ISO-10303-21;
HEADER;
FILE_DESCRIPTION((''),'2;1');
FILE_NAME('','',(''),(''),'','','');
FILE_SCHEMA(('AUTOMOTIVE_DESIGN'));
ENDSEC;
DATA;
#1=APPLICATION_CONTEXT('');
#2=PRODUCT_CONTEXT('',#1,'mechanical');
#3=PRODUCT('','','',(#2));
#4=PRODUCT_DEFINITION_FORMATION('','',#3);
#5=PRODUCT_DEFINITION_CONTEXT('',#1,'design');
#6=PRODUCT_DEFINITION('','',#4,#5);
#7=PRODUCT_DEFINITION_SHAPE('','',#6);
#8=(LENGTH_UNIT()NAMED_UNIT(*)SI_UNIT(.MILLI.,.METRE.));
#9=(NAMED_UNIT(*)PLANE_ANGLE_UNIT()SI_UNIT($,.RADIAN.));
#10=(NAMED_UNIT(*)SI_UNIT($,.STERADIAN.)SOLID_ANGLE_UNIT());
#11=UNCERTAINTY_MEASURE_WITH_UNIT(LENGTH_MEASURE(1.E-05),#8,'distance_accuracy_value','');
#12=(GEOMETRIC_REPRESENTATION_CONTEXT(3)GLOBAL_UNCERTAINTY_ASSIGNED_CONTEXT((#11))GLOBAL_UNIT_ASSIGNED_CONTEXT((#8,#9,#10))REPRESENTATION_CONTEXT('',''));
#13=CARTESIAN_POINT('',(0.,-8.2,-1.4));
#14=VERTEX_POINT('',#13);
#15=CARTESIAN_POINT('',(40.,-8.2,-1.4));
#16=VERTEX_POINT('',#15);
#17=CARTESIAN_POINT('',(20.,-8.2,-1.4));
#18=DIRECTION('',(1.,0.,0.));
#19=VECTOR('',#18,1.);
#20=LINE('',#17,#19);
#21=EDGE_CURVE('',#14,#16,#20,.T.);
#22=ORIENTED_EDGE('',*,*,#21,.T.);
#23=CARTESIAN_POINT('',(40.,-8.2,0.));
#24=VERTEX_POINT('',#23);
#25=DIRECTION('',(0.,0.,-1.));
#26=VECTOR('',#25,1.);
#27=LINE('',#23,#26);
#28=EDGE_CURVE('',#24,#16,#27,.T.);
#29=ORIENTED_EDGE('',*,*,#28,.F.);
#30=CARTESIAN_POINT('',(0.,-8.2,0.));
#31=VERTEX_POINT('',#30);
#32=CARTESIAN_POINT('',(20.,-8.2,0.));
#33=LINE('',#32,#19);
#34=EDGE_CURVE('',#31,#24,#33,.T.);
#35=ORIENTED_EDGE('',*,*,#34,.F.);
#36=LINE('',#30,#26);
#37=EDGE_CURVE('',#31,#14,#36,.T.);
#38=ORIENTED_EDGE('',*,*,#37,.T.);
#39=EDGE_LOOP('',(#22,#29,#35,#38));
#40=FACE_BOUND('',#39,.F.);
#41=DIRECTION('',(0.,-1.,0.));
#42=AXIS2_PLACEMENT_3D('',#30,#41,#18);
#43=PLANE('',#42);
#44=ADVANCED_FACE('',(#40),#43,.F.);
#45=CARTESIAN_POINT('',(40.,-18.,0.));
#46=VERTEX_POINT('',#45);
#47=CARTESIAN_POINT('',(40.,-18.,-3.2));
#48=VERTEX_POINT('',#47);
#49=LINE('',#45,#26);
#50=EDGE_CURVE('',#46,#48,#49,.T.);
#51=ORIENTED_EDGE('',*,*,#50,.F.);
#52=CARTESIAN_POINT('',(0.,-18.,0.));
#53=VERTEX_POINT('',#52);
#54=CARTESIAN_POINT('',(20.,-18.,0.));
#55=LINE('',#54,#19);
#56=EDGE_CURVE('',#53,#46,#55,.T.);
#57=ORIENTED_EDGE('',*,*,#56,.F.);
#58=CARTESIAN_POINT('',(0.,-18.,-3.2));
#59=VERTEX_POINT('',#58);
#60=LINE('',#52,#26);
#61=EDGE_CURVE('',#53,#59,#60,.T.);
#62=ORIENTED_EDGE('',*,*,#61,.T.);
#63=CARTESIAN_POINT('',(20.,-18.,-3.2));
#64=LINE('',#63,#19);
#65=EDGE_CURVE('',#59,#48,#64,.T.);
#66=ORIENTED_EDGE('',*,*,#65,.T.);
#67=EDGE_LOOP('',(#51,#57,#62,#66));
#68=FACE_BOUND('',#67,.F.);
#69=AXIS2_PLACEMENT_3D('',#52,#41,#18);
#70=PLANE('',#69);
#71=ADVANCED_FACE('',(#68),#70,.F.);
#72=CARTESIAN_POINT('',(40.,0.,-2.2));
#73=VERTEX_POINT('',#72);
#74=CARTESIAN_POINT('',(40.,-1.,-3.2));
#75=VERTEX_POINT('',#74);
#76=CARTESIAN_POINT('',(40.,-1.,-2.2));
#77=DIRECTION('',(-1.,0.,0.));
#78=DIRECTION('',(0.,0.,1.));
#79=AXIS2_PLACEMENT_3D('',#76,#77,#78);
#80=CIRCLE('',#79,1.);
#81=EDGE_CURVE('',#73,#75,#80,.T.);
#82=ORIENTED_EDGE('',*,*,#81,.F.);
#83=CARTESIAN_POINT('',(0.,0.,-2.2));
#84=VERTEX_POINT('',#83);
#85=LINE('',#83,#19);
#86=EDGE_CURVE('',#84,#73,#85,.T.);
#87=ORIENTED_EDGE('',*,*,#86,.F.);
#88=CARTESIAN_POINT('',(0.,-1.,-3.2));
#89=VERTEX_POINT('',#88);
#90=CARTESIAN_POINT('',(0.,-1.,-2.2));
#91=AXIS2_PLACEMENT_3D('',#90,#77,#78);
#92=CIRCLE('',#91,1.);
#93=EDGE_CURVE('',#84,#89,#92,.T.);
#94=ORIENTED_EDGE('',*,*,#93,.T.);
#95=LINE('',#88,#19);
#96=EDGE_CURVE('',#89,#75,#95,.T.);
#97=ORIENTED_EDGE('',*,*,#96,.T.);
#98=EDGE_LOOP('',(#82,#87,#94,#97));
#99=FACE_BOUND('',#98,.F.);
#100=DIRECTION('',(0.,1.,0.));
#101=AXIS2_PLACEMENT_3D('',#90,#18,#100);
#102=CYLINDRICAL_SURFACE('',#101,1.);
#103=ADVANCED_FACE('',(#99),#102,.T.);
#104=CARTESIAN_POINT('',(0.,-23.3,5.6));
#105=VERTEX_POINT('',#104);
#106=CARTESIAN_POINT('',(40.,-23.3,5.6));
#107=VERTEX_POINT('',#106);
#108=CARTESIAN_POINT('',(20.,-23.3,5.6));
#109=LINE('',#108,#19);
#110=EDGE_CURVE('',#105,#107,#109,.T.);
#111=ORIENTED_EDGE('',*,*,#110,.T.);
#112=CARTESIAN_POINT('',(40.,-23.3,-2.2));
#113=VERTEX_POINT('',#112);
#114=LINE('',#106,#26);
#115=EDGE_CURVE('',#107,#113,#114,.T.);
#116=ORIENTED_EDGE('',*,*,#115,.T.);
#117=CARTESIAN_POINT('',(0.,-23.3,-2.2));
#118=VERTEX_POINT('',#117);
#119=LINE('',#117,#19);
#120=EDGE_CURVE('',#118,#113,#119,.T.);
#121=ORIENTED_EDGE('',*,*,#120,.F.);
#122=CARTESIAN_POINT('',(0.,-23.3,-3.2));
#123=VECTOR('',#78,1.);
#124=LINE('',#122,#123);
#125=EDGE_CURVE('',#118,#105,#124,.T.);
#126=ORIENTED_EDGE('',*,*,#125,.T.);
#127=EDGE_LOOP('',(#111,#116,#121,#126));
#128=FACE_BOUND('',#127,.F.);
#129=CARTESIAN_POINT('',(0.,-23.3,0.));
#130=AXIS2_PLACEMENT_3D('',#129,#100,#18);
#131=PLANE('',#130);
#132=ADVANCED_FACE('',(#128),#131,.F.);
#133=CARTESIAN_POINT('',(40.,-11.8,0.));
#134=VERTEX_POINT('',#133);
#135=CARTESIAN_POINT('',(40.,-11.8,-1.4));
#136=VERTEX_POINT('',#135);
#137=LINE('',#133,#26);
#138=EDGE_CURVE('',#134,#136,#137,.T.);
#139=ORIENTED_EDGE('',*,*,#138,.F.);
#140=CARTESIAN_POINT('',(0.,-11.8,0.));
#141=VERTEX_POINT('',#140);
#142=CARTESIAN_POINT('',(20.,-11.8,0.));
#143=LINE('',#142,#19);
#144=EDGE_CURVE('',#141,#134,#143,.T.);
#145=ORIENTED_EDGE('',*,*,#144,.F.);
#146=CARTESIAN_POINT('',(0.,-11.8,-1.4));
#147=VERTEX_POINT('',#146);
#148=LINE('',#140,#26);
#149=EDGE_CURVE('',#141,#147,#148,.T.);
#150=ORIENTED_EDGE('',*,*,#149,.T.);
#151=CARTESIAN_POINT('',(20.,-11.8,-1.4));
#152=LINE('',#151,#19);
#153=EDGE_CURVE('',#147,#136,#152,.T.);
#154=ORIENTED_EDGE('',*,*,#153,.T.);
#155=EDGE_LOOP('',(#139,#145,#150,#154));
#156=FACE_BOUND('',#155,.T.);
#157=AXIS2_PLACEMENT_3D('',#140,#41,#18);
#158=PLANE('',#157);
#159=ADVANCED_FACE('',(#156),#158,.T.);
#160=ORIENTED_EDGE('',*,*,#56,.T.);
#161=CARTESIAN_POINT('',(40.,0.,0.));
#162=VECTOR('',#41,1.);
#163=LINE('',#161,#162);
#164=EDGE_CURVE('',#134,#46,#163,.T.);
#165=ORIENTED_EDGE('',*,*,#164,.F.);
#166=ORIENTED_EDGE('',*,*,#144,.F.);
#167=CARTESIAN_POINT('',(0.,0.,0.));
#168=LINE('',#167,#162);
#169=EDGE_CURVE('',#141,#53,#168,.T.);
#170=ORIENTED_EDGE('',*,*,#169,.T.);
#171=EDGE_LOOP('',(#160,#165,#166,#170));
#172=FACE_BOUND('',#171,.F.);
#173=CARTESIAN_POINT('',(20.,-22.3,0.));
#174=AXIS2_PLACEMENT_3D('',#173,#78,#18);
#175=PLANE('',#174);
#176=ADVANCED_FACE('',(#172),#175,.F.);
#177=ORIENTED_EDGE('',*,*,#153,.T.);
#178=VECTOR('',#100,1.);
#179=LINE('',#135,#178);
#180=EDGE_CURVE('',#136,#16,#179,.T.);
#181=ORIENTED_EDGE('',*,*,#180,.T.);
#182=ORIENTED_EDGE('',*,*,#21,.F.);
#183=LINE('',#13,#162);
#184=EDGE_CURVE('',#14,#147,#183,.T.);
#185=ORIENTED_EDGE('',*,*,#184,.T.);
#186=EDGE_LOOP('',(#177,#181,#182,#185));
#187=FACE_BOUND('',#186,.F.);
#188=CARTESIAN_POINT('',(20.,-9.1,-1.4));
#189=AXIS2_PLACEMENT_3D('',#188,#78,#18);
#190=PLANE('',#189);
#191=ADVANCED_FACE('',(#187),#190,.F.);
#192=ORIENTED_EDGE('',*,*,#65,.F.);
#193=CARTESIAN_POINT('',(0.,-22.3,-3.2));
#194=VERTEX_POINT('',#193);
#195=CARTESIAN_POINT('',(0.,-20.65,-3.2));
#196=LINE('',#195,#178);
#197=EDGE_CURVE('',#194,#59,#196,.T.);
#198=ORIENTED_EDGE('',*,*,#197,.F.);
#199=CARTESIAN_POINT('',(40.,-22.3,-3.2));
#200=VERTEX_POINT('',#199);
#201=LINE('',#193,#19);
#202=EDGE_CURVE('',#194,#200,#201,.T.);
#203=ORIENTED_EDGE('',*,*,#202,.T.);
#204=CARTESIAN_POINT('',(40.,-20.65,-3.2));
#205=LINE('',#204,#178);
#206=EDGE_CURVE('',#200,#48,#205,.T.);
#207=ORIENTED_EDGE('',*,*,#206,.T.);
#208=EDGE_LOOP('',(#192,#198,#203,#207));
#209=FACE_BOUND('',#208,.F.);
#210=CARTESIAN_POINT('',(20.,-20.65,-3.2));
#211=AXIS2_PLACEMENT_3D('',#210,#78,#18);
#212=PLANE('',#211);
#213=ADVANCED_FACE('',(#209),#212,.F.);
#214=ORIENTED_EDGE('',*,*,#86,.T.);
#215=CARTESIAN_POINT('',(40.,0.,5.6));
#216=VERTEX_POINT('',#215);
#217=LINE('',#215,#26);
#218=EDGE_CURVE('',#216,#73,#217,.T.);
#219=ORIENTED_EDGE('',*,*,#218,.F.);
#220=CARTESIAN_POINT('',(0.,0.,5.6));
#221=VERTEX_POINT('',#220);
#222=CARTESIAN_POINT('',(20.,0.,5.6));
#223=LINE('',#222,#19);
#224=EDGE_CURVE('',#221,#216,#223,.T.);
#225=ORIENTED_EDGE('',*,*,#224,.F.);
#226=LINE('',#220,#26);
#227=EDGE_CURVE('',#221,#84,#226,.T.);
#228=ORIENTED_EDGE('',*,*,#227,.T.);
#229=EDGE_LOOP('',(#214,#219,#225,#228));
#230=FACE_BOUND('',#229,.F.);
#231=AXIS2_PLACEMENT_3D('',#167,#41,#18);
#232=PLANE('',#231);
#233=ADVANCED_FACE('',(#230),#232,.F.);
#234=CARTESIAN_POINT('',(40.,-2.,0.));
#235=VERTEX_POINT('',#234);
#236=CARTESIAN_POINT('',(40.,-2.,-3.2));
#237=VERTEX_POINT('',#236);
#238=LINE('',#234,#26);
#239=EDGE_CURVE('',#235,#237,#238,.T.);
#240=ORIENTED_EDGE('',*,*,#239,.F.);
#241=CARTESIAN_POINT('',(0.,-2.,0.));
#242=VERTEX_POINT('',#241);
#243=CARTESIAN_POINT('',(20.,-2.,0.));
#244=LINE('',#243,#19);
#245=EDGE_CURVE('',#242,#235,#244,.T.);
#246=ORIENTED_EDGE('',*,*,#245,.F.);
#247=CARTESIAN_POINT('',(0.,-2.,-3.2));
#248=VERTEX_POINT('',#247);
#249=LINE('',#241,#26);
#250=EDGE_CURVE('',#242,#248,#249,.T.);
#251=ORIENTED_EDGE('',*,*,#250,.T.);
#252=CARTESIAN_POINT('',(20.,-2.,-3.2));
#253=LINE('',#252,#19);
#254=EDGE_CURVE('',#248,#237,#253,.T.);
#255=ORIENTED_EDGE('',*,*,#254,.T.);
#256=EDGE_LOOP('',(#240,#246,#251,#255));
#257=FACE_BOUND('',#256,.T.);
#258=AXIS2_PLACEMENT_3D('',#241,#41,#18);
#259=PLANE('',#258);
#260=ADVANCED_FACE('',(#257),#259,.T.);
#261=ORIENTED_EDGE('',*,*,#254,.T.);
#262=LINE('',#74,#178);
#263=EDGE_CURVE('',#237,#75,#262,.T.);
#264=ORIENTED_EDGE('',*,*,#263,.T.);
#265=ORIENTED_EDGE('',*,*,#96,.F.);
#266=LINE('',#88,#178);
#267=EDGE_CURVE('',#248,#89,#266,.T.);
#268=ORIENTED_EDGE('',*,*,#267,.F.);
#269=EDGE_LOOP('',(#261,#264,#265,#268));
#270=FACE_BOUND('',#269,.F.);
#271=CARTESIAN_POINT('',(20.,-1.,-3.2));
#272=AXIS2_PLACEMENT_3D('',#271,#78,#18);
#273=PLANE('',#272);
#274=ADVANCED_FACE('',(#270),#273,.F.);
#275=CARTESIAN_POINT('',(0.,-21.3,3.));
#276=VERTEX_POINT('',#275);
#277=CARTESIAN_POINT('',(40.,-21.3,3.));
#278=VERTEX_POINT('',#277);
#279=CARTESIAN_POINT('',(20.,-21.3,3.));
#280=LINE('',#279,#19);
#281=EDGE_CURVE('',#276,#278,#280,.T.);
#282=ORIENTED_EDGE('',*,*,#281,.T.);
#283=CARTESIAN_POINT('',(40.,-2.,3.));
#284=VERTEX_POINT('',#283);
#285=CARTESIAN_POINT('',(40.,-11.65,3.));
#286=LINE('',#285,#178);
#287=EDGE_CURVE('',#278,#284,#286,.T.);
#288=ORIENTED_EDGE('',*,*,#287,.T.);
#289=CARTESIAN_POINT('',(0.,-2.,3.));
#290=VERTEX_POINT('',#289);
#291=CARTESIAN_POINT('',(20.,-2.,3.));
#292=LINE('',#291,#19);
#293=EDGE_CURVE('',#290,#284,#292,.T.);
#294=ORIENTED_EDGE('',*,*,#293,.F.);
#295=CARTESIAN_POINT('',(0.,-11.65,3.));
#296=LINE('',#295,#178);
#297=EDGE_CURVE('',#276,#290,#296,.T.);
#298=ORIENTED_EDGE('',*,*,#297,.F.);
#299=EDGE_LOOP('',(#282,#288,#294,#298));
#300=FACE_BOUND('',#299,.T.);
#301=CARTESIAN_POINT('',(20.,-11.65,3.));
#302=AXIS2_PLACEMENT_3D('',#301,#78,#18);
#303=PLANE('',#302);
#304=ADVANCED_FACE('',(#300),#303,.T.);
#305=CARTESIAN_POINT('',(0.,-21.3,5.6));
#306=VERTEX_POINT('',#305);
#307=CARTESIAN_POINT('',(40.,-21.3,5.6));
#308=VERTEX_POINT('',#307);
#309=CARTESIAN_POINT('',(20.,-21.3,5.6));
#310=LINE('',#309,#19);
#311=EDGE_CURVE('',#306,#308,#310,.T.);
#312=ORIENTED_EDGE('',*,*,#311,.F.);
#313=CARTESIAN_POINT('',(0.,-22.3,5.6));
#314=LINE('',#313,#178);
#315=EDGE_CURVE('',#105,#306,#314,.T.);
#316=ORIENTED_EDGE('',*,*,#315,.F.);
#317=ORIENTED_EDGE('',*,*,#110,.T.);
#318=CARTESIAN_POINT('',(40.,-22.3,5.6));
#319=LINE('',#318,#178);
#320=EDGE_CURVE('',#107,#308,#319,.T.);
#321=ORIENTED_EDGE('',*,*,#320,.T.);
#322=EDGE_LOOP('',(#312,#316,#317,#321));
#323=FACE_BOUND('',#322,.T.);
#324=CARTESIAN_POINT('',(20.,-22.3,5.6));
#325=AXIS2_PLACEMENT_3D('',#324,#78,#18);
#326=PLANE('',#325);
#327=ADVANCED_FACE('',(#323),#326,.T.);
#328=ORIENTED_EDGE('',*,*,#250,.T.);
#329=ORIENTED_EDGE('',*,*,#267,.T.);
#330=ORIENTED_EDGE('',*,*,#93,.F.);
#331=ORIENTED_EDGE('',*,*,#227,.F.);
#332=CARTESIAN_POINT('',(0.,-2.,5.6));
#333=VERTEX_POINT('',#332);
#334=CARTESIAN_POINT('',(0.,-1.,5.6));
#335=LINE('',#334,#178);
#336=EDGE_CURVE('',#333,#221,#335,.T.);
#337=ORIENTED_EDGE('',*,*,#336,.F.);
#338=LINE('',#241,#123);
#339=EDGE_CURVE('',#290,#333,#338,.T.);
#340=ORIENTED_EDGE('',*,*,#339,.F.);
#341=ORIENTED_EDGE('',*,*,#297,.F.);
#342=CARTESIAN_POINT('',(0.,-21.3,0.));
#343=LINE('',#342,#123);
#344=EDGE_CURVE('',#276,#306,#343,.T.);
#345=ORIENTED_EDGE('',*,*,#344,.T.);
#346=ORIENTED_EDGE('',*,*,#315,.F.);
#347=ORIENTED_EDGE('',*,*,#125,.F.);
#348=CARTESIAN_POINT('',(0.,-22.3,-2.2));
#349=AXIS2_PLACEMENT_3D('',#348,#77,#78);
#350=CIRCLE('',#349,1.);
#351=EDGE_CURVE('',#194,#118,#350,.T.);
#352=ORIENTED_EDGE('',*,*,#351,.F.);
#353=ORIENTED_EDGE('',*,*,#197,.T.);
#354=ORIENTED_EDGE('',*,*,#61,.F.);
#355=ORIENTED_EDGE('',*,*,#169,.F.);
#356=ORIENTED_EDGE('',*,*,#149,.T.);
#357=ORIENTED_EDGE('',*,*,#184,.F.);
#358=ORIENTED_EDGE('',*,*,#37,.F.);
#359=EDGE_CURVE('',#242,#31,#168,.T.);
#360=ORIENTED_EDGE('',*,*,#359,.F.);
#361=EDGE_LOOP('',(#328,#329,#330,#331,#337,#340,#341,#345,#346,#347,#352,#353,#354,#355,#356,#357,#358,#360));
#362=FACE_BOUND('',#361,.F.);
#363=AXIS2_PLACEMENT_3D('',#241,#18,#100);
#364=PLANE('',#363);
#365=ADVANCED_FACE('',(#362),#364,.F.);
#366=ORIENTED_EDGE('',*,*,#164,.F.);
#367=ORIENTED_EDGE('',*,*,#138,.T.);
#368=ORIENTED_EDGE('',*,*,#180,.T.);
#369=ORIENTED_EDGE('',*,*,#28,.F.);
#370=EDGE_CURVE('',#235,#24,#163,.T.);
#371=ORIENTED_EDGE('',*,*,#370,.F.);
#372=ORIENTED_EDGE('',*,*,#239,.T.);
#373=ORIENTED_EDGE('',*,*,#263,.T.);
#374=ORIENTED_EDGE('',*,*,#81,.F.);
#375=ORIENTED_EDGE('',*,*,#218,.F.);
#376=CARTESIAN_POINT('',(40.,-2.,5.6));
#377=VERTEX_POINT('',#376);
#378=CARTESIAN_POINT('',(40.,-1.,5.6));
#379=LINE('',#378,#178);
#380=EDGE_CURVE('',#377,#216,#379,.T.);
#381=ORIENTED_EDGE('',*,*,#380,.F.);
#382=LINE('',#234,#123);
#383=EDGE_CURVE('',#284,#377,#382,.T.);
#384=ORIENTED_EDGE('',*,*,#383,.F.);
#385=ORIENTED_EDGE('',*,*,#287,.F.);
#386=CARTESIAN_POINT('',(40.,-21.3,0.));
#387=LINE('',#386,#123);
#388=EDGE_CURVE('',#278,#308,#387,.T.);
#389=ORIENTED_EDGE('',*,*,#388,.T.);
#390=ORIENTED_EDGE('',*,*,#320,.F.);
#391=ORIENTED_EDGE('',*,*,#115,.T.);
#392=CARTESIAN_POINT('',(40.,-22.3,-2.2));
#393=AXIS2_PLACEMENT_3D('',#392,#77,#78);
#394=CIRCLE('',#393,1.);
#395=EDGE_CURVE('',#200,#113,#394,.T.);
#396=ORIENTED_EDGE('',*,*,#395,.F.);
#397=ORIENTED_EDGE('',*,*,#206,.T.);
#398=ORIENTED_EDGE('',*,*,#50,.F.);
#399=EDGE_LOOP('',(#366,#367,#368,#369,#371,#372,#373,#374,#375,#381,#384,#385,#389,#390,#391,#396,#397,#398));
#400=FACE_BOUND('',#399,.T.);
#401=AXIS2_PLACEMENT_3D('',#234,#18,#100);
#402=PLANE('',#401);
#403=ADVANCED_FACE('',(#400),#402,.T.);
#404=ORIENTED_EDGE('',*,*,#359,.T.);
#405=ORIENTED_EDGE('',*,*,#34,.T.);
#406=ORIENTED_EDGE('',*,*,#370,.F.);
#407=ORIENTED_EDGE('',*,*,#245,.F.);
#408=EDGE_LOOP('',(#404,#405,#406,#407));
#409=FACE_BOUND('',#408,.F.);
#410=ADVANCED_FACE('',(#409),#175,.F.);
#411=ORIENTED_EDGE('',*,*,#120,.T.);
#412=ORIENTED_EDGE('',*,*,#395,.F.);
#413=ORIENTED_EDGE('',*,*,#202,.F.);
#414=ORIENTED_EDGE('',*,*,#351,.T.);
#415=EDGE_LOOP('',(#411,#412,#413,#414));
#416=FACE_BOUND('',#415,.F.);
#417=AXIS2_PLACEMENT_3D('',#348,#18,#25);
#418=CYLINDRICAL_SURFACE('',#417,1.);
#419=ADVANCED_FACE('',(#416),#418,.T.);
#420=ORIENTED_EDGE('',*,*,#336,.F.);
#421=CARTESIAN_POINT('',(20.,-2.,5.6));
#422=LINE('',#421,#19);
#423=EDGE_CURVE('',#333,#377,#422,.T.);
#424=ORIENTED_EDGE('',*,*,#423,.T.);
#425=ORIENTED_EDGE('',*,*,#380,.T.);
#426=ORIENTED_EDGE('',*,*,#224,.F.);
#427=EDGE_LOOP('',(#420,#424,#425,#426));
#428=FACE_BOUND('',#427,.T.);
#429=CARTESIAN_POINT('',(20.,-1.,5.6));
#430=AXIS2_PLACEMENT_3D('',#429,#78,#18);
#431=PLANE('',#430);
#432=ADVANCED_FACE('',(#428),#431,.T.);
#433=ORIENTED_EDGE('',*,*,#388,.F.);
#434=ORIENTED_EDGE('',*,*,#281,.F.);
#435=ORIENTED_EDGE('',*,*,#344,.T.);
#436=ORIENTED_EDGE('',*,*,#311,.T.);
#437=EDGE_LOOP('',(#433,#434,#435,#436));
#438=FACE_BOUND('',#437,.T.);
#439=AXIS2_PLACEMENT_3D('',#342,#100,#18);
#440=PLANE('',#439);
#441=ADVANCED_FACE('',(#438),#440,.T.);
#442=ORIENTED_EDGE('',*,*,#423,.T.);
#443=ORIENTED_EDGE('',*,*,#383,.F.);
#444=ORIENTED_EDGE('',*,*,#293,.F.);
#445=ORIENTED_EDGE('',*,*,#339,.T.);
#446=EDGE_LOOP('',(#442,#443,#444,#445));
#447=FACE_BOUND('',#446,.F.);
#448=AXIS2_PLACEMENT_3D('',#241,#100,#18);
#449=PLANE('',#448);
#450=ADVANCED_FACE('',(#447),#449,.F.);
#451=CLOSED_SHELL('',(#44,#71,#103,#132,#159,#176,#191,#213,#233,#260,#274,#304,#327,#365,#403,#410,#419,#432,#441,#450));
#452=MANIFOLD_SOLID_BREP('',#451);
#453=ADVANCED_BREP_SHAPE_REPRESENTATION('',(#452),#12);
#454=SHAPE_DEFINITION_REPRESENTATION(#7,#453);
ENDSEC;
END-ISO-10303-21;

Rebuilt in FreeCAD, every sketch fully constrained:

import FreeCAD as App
import Part
import Sketcher


def edges_at(feature, points):
    """Names of the edges that pass closest to the given points."""
    edges = feature.Shape.Edges
    near = lambda p: min(range(len(edges)), key=lambda i: edges[i].distToShape(Part.Vertex(*p))[0])
    return sorted({f"Edge{near(p) + 1}" for p in points})


def add_polygon(sketch, points):
    """Adds a closed chain of lines whose ends are joined by coincident constraints."""
    first, n = sketch.GeometryCount, len(points)
    for a, b in zip(points, points[1:] + points[:1]):
        sketch.addGeometry(Part.LineSegment(App.Vector(*a, 0), App.Vector(*b, 0)), False)
    for i in range(n):
        sketch.addConstraint(Sketcher.Constraint("Coincident", first + i, 2, first + (i + 1) % n, 1))

doc = App.newDocument("Part")
params = doc.addObject("Spreadsheet::Sheet", "Params")
for row, (alias, value) in enumerate([
    ("sketch1_width", "40 mm"),
    ("sketch1_height", "19.3 mm"),
    ("pad1_length", "3 mm"),
    ("sketch2_width", "40 mm"),
    ("sketch2_height", "2 mm"),
    ("pad2_length", "5.6 mm"),
    ("sketch3_width", "40 mm"),
    ("sketch3_height", "2 mm"),
    ("sketch3_height2", "5.3 mm"),
    ("pad3_length", "3.2 mm"),
    ("fillet_radius", "1 mm"),
    ("sketch4_width", "40 mm"),
    ("sketch4_height", "3.6 mm"),
    ("pad4_length", "1.4 mm"),
], start=1):
    params.set(f"A{row}", alias)
    params.set(f"B{row}", "=" + value)
    params.setAlias(f"B{row}", alias)

body = doc.addObject("PartDesign::Body", "Body")

sketch1 = body.newObject("Sketcher::SketchObject", "Sketch")
sketch1.AttachmentSupport = (doc.getObject("XY_Plane"), [""])
sketch1.MapMode = "FlatFace"
add_polygon(sketch1, [(0, -2), (0, -21), (40, -21), (40, -2)])
sketch1.addConstraint([
    Sketcher.Constraint("Vertical", 0),
    Sketcher.Constraint("Horizontal", 1),
    Sketcher.Constraint("Vertical", 2),
    Sketcher.Constraint("Horizontal", 3),
    Sketcher.Constraint("PointOnObject", 0, 2, -2),
    Sketcher.Constraint("DistanceX", 1, 1, 1, 2, 40.0),
    Sketcher.Constraint("DistanceY", 0, 2, 0, 1, 19.3),
    Sketcher.Constraint("DistanceY", 2, 2, -1, 1, 2.0),
])
sketch1.setExpression("Constraints[9]", "Params.sketch1_width")
sketch1.setExpression("Constraints[10]", "Params.sketch1_height")
pad1 = body.newObject("PartDesign::Pad", "Pad")
pad1.Profile = sketch1
pad1.setExpression("Length", "Params.pad1_length")

sketch2 = body.newObject("Sketcher::SketchObject", "Sketch001")
sketch2.AttachmentSupport = (doc.getObject("XY_Plane"), [""])
sketch2.MapMode = "FlatFace"
add_polygon(sketch2, [(0, -21.3), (0, -23.3), (40, -23.3), (40, -21.3)])
add_polygon(sketch2, [(0, 0), (0, -2), (40, -2), (40, 0)])
sketch2.addConstraint([
    Sketcher.Constraint("Vertical", 0),
    Sketcher.Constraint("Horizontal", 1),
    Sketcher.Constraint("Vertical", 2),
    Sketcher.Constraint("Horizontal", 3),
    Sketcher.Constraint("Vertical", 4),
    Sketcher.Constraint("Horizontal", 5),
    Sketcher.Constraint("Vertical", 6),
    Sketcher.Constraint("Horizontal", 7),
    Sketcher.Constraint("Coincident", 7, 2, -1, 1),
    Sketcher.Constraint("PointOnObject", 0, 2, -2),
    Sketcher.Constraint("Vertical", 2, 2, 5, 2),
    Sketcher.Constraint("Equal", 2, 4),
    Sketcher.Constraint("DistanceX", 1, 1, 1, 2, 40.0),
    Sketcher.Constraint("DistanceY", 0, 2, 0, 1, 2.0),
    Sketcher.Constraint("DistanceY", 0, 2, -1, 1, 23.3),
])
sketch2.setExpression("Constraints[20]", "Params.sketch2_width")
sketch2.setExpression("Constraints[21]", "Params.sketch2_height")
pad2 = body.newObject("PartDesign::Pad", "Pad001")
pad2.Profile = sketch2
pad2.setExpression("Length", "Params.pad2_length")

sketch3 = body.newObject("Sketcher::SketchObject", "Sketch002")
sketch3.AttachmentSupport = (doc.getObject("XY_Plane"), [""])
sketch3.MapMode = "FlatFace"
add_polygon(sketch3, [(0, 0), (0, -2), (40, -2), (40, 0)])
add_polygon(sketch3, [(0, -18), (0, -23.3), (40, -23.3), (40, -18)])
sketch3.addConstraint([
    Sketcher.Constraint("Vertical", 0),
    Sketcher.Constraint("Horizontal", 1),
    Sketcher.Constraint("Vertical", 2),
    Sketcher.Constraint("Horizontal", 3),
    Sketcher.Constraint("Vertical", 4),
    Sketcher.Constraint("Horizontal", 5),
    Sketcher.Constraint("Vertical", 6),
    Sketcher.Constraint("Horizontal", 7),
    Sketcher.Constraint("Coincident", 3, 2, -1, 1),
    Sketcher.Constraint("PointOnObject", 4, 2, -2),
    Sketcher.Constraint("Vertical", 2, 2, 5, 2),
    Sketcher.Constraint("DistanceX", 1, 1, 1, 2, 40.0),
    Sketcher.Constraint("DistanceY", 0, 2, 0, 1, 2.0),
    Sketcher.Constraint("DistanceY", 4, 2, 4, 1, 5.3),
    Sketcher.Constraint("DistanceY", 6, 2, -1, 1, 18.0),
])
sketch3.setExpression("Constraints[19]", "Params.sketch3_width")
sketch3.setExpression("Constraints[20]", "Params.sketch3_height")
sketch3.setExpression("Constraints[21]", "Params.sketch3_height2")
pad3 = body.newObject("PartDesign::Pad", "Pad002")
pad3.Profile = sketch3
pad3.setExpression("Length", "Params.pad3_length")
pad3.Reversed = True
doc.recompute()

fillet = body.newObject("PartDesign::Fillet", "Fillet")
fillet.Base = (pad3, edges_at(pad3, [(20, -23.3, -3.2), (20, 0, -3.2)]))
fillet.setExpression("Radius", "Params.fillet_radius")

sketch4 = body.newObject("Sketcher::SketchObject", "Sketch003")
sketch4.AttachmentSupport = (doc.getObject("XY_Plane"), [""])
sketch4.MapMode = "FlatFace"
add_polygon(sketch4, [(0, -8.2), (0, -11.8), (40, -11.8), (40, -8.2)])
sketch4.addConstraint([
    Sketcher.Constraint("Vertical", 0),
    Sketcher.Constraint("Horizontal", 1),
    Sketcher.Constraint("Vertical", 2),
    Sketcher.Constraint("Horizontal", 3),
    Sketcher.Constraint("PointOnObject", 0, 2, -2),
    Sketcher.Constraint("DistanceX", 1, 1, 1, 2, 40.0),
    Sketcher.Constraint("DistanceY", 0, 2, 0, 1, 3.6),
    Sketcher.Constraint("DistanceY", 0, 2, -1, 1, 11.8),
])
sketch4.setExpression("Constraints[9]", "Params.sketch4_width")
sketch4.setExpression("Constraints[10]", "Params.sketch4_height")
pad4 = body.newObject("PartDesign::Pad", "Pad003")
pad4.Profile = sketch4
pad4.setExpression("Length", "Params.pad4_length")
pad4.Reversed = True

doc.recompute()
